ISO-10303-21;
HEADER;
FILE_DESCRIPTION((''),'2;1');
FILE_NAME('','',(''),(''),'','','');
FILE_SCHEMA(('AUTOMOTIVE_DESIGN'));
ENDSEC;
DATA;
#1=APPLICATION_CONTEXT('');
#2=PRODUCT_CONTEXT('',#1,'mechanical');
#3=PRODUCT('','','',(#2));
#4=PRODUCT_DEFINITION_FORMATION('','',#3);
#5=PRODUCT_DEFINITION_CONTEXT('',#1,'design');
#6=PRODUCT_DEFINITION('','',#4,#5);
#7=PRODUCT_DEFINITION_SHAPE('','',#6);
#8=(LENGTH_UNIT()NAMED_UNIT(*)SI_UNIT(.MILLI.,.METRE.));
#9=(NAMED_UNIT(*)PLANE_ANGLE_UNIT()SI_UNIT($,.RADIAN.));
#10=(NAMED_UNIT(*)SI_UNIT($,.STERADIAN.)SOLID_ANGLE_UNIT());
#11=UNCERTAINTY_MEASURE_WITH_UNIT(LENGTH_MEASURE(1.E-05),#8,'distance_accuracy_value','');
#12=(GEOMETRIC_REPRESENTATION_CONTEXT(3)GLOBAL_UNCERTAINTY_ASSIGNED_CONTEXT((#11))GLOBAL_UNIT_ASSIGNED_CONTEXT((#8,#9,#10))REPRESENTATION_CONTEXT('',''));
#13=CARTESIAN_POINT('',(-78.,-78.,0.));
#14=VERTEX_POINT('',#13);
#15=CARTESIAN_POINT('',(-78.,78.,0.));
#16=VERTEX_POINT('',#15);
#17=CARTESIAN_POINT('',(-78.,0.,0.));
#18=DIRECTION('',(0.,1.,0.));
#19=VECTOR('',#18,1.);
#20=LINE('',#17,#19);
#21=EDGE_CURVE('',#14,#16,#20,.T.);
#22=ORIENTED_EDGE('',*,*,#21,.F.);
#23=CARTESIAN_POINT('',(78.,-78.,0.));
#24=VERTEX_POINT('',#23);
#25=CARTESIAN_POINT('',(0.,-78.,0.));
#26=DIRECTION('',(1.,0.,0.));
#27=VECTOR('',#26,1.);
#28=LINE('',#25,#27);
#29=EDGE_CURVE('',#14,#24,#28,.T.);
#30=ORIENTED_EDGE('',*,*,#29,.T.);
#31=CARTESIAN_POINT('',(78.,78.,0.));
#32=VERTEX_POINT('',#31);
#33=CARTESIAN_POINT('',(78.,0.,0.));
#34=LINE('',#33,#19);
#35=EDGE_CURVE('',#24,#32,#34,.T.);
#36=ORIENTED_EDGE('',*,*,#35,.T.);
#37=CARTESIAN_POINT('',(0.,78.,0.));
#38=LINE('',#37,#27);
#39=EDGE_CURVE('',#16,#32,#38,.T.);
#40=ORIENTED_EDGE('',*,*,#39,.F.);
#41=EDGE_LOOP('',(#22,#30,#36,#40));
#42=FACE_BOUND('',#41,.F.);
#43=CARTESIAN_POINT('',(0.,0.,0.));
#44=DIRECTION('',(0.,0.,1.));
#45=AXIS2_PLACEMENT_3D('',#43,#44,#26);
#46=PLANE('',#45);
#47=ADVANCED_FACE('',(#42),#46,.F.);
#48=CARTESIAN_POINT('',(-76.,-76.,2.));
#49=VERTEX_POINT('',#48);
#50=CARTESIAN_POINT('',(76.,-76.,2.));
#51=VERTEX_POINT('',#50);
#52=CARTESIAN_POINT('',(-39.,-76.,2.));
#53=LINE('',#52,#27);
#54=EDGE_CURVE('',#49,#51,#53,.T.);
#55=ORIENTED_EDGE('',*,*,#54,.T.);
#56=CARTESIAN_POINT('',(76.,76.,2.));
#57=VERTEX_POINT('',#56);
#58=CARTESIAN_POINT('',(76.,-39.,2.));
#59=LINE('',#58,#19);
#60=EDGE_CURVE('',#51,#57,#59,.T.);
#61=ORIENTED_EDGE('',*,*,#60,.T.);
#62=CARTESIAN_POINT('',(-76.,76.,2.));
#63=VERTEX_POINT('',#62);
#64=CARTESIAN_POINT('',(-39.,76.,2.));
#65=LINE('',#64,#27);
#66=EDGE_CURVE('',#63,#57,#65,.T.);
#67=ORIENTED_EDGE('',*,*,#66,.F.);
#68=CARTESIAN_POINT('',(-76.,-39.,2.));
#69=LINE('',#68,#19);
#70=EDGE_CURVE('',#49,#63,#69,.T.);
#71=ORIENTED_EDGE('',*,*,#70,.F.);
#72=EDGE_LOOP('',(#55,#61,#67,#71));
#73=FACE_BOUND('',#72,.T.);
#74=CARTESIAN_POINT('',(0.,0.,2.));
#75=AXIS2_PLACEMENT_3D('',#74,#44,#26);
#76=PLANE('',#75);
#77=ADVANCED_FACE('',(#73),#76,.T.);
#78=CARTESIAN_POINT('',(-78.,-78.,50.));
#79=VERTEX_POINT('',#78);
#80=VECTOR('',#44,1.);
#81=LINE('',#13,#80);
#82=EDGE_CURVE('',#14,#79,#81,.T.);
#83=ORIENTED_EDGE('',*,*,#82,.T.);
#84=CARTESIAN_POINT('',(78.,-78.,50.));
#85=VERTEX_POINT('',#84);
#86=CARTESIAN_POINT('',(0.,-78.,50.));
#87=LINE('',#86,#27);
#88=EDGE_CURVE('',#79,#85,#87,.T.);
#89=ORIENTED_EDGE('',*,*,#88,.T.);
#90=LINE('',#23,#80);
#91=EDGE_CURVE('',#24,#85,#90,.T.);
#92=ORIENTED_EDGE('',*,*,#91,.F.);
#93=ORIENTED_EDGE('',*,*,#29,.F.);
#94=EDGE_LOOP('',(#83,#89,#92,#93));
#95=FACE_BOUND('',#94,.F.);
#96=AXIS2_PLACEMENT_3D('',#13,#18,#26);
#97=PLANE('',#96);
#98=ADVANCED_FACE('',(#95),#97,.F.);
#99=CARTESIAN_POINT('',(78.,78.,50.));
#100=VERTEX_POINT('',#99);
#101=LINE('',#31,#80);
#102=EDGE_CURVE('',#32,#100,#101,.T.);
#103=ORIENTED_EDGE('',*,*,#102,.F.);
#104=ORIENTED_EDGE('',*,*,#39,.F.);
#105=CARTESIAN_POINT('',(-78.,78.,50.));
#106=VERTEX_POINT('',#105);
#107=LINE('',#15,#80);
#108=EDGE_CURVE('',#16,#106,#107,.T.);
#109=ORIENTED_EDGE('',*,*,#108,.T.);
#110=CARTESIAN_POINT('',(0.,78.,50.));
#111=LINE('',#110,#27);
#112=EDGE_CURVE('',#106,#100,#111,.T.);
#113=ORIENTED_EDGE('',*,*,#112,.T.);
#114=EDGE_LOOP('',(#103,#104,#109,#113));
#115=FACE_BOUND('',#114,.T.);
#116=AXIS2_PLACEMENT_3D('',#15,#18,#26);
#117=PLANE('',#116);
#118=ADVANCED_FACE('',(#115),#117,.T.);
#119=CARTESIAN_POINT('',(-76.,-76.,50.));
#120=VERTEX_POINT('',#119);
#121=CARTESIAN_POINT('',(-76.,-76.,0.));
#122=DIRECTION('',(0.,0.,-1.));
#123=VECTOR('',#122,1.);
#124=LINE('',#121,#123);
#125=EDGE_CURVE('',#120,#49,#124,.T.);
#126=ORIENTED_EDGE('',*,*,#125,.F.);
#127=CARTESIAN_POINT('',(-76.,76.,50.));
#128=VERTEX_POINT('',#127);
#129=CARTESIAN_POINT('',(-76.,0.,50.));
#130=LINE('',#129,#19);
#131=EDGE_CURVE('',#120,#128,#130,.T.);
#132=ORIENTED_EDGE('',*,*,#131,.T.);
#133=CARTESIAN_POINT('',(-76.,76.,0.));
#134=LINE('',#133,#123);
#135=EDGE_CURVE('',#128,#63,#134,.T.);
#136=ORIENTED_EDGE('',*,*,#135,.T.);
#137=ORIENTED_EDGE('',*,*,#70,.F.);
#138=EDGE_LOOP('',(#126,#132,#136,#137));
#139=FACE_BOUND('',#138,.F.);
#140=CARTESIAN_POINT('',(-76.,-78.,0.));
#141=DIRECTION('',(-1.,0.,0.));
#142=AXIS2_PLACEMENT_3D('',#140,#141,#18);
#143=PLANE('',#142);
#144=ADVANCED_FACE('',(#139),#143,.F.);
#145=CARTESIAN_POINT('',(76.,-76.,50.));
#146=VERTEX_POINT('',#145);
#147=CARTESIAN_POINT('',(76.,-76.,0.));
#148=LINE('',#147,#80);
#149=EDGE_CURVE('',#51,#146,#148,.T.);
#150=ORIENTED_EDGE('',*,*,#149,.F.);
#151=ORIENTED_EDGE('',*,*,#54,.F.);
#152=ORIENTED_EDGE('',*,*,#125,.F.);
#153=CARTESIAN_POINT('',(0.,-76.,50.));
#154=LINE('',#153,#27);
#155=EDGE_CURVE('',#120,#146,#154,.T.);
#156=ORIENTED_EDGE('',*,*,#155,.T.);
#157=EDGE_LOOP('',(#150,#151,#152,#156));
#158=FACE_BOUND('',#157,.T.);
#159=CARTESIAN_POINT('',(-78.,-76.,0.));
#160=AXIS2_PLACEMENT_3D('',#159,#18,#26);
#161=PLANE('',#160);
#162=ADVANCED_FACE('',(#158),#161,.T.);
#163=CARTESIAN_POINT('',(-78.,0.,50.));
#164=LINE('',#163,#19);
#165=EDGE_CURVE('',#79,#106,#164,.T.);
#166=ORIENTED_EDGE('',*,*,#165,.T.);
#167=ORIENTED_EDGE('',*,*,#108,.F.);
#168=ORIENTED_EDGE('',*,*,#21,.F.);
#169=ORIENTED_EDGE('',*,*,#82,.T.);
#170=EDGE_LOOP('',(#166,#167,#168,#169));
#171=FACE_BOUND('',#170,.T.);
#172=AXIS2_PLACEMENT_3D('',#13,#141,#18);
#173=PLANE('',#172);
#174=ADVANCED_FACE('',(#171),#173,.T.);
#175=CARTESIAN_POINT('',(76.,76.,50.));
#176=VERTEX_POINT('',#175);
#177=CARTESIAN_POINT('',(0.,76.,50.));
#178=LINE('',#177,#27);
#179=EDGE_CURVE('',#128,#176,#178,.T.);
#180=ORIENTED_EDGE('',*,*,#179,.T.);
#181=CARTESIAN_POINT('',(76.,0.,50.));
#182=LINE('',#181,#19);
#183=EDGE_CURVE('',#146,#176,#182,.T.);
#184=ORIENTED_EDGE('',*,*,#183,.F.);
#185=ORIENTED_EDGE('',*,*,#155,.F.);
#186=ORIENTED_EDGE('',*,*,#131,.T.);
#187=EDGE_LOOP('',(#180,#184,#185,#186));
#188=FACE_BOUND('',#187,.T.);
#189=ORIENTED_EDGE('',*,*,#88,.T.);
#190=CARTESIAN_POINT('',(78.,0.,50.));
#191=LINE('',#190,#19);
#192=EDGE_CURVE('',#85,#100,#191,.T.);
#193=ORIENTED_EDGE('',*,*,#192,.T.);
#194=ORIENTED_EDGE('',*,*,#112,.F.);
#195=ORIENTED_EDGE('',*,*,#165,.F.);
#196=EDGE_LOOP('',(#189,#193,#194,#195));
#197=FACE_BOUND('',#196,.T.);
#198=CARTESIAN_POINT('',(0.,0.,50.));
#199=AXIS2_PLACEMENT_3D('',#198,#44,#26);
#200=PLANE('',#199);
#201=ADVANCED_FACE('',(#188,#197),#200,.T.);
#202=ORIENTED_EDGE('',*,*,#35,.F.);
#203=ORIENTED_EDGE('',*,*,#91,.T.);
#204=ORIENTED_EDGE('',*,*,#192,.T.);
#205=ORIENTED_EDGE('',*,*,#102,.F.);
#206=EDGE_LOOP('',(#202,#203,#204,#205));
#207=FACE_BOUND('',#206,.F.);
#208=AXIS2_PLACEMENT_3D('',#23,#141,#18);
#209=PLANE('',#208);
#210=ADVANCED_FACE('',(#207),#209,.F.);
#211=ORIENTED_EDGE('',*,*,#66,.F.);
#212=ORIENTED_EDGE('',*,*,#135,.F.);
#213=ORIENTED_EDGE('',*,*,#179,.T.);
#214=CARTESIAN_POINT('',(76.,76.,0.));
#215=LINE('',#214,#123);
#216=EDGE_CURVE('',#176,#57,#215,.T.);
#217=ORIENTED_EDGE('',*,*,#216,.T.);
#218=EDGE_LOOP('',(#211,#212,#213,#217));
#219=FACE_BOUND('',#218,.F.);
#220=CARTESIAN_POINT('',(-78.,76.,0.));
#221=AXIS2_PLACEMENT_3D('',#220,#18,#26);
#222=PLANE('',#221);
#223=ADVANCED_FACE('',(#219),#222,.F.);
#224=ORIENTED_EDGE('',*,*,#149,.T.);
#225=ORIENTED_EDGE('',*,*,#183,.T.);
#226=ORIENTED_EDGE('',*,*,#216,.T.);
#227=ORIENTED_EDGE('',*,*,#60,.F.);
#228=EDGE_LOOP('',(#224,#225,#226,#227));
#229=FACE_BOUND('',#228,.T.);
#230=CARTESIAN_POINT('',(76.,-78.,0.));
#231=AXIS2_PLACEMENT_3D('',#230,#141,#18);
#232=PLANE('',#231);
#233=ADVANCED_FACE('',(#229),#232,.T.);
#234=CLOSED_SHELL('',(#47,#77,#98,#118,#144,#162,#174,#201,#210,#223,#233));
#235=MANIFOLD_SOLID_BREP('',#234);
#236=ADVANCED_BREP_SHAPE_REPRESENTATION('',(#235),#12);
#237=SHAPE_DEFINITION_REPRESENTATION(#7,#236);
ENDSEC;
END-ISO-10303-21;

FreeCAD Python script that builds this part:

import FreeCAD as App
import Part
import Sketcher


def faces_at(feature, points):
    """Names of the faces that lie closest to the given points."""
    faces = feature.Shape.Faces
    near = lambda p: min(range(len(faces)), key=lambda i: faces[i].distToShape(Part.Vertex(*p))[0])
    return sorted({f"Face{near(p) + 1}" for p in points})


def add_polygon(sketch, points):
    """Adds a closed chain of lines whose ends are joined by coincident constraints."""
    first, n = sketch.GeometryCount, len(points)
    for a, b in zip(points, points[1:] + points[:1]):
        sketch.addGeometry(Part.LineSegment(App.Vector(*a, 0), App.Vector(*b, 0)), False)
    for i in range(n):
        sketch.addConstraint(Sketcher.Constraint("Coincident", first + i, 2, first + (i + 1) % n, 1))

doc = App.newDocument("Part")
params = doc.addObject("Spreadsheet::Sheet", "Params")
for row, (alias, value) in enumerate([
    ("sketch1_width", "156 mm"),
    ("pad1_length", "50 mm"),
    ("thickness_wall", "2 mm"),
], start=1):
    params.set(f"A{row}", alias)
    params.set(f"B{row}", "=" + value)
    params.setAlias(f"B{row}", alias)

body = doc.addObject("PartDesign::Body", "Body")

# Sketch on XY plane
sketch1 = doc.addObject("Sketcher::SketchObject", "Sketch")
body.addObject(sketch1)
sketch1.AttachmentSupport = (doc.XY_Plane, [""])
sketch1.MapMode = "FlatFace"
add_polygon(sketch1, [(-78, 78), (-78, -78), (78, -78), (78, 78)])  # lines 0-3
sketch1.addConstraint([
    Sketcher.Constraint("Vertical", 0),
    Sketcher.Constraint("Horizontal", 1),
    Sketcher.Constraint("Vertical", 2),
    Sketcher.Constraint("Horizontal", 3),
    Sketcher.Constraint("Symmetric", 0, 2, 2, 2, -1, 1),
    Sketcher.Constraint("Equal", 3, 0),
    Sketcher.Constraint("DistanceX", 1, 1, 1, 2, 156.0),
])
sketch1.setExpression("Constraints[10]", "Params.sketch1_width")
pad1 = doc.addObject("PartDesign::Pad", "Pad")
body.addObject(pad1)
pad1.Profile = sketch1
pad1.setExpression("Length", "Params.pad1_length")
doc.recompute()

thickness = doc.addObject("PartDesign::Thickness", "Thickness")
body.addObject(thickness)
thickness.Base = (pad1, faces_at(pad1, [(0, 0, 50)]))
thickness.setExpression("Value", "Params.thickness_wall")
thickness.Reversed = True
thickness.Join = "Arc"

doc.recompute()
